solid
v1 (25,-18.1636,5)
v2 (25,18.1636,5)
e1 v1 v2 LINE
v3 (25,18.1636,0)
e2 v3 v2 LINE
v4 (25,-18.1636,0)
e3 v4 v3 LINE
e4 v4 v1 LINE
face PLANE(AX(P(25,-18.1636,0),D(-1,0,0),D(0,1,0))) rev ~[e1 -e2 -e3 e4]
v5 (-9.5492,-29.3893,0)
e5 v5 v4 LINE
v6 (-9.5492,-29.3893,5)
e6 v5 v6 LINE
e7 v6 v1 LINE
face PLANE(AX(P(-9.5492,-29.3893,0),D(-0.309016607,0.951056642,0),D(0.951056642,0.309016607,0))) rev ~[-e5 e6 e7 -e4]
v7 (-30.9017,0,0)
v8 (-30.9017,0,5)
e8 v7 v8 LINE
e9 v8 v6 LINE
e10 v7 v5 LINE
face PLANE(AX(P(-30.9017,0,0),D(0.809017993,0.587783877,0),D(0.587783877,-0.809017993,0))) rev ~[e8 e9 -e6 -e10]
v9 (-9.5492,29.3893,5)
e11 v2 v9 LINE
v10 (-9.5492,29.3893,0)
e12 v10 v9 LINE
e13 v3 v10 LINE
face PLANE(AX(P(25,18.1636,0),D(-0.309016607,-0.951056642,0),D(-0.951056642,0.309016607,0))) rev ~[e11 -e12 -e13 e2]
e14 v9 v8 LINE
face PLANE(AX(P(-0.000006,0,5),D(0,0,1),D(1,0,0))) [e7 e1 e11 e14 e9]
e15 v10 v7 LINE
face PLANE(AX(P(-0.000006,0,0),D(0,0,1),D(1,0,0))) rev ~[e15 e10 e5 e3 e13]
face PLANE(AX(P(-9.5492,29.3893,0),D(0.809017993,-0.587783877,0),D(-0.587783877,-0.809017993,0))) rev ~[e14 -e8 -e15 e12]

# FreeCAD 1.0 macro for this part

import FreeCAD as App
import Part
import Sketcher
from FreeCAD import Vector
Q = App.Units.Quantity


def add_polygon(sketch, points):
    """Adds a closed chain of lines whose ends are joined by coincident constraints."""
    first, n = sketch.GeometryCount, len(points)
    for a, b in zip(points, points[1:] + points[:1]):
        sketch.addGeometry(Part.LineSegment(App.Vector(*a, 0), App.Vector(*b, 0)), False)
    for i in range(n):
        sketch.addConstraint(Sketcher.Constraint("Coincident", first + i, 2, first + (i + 1) % n, 1))

doc = App.newDocument("Part")
params = doc.addObject("Spreadsheet::Sheet", "Params")
for row, (alias, value) in enumerate([
    ("pad1_length", "5 mm"),
], start=1):
    params.set(f"A{row}", alias)
    params.set(f"B{row}", "=" + value)
    params.setAlias(f"B{row}", alias)

body = doc.addObject("PartDesign::Body", "Body")

sketch1 = doc.addObject("Sketcher::SketchObject", "Sketch")
body.addObject(sketch1)
sketch1.AttachmentSupport = (doc.XY_Plane, [""])
sketch1.MapMode = "FlatFace"
add_polygon(sketch1, [(-31, 0), (-10, -29), (25, -18), (25, 18), (-10, 29)])
sketch1.addConstraint(Sketcher.Constraint("Vertical", 2))
sketch1.addConstraint(Sketcher.Constraint("Symmetric", 0, 2, 3, 2, -1))
sketch1.addConstraint(Sketcher.Constraint("PointOnObject", 4, 2, -1))
sketch1.addConstraint(Sketcher.Constraint("Equal", 0, 1))
sketch1.addConstraint(Sketcher.Constraint("Equal", 1, 3))
sketch1.addConstraint(Sketcher.Constraint("Angle", 0, Q("-54 deg")))
sketch1.addConstraint(Sketcher.Constraint("Angle", 1, Q("18 deg")))
sketch1.addConstraint(Sketcher.Constraint("DistanceX", -1, 1, 1, 2, Q("25 mm")))
sketch1.addConstraint(Sketcher.Constraint("DistanceY", 2, 1, 2, 2, Q("36.3272 mm")))
pad1 = doc.addObject("PartDesign::Pad", "Pad")
body.addObject(pad1)
pad1.Profile = sketch1
pad1.setExpression("Length", "Params.pad1_length")

doc.recompute()
